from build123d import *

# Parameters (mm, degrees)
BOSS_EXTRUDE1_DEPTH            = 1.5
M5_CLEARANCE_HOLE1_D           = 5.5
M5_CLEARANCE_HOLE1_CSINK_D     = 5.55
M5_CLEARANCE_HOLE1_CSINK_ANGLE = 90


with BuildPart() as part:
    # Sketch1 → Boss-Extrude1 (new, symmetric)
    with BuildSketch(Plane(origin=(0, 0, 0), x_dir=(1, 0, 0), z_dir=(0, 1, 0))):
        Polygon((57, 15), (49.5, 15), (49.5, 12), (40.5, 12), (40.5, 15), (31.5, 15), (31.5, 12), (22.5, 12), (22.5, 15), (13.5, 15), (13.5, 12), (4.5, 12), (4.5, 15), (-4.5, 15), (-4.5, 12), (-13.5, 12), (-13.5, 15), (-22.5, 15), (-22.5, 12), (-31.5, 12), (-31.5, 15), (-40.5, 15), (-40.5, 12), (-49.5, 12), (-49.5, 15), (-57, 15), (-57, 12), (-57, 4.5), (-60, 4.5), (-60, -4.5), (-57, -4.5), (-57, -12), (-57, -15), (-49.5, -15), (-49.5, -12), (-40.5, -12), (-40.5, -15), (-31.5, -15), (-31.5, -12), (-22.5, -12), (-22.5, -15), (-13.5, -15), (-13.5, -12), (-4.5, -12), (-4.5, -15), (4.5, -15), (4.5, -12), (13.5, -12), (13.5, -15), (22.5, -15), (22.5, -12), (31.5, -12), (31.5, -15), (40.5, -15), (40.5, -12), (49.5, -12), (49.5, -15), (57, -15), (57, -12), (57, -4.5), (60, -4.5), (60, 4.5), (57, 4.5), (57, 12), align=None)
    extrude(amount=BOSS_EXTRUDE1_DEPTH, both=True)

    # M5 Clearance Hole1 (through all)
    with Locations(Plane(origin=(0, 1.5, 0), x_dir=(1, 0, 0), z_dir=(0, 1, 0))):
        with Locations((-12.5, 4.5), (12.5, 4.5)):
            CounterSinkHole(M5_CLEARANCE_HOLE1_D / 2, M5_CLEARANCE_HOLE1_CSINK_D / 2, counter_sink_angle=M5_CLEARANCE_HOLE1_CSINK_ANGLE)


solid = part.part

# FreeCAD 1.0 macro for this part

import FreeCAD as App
import Part
import Sketcher
from FreeCAD import Vector
Q = App.Units.Quantity

doc = App.newDocument("Part")
params = doc.addObject("Spreadsheet::Sheet", "Params")
for row, (alias, value) in enumerate([
    ("sketch1_width", "9 mm"),
    ("sketch1_width2", "3 mm"),
    ("sketch1_width3", "7.5 mm"),
    ("sketch1_height", "10.5 mm"),
    ("pad1_length", "3 mm"),
    ("sketch2_diameter", "5.5 mm"),
    ("hole_diameter", "5.5 mm"),
    ("hole_csink_diameter", "5.55 mm"),
], start=1):
    params.set(f"A{row}", alias)
    params.set(f"B{row}", "=" + value)
    params.setAlias(f"B{row}", alias)

body = doc.addObject("PartDesign::Body", "Body")

# Sketch on XZ plane
sketch1 = body.newObject("Sketcher::SketchObject", "Sketch")
sketch1.AttachmentSupport = (doc.getObject("XZ_Plane"), [""])
sketch1.MapMode = "FlatFace"
sketch1.addGeometry([
    Part.LineSegment(Vector(57, -15, 0), Vector(49.5, -15, 0)),  # 0
    Part.LineSegment(Vector(49.5, -15, 0), Vector(49.5, -12, 0)),  # 1
    Part.LineSegment(Vector(49.5, -12, 0), Vector(40.5, -12, 0)),  # 2
    Part.LineSegment(Vector(40.5, -12, 0), Vector(40.5, -15, 0)),  # 3
    Part.LineSegment(Vector(40.5, -15, 0), Vector(31.5, -15, 0)),  # 4
    Part.LineSegment(Vector(31.5, -15, 0), Vector(31.5, -12, 0)),  # 5
    Part.LineSegment(Vector(31.5, -12, 0), Vector(22.5, -12, 0)),  # 6
    Part.LineSegment(Vector(22.5, -12, 0), Vector(22.5, -15, 0)),  # 7
    Part.LineSegment(Vector(22.5, -15, 0), Vector(13.5, -15, 0)),  # 8
    Part.LineSegment(Vector(13.5, -15, 0), Vector(13.5, -12, 0)),  # 9
    Part.LineSegment(Vector(13.5, -12, 0), Vector(4.5, -12, 0)),  # 10
    Part.LineSegment(Vector(4.5, -12, 0), Vector(4.5, -15, 0)),  # 11
    Part.LineSegment(Vector(4.5, -15, 0), Vector(-4.5, -15, 0)),  # 12
    Part.LineSegment(Vector(-4.5, -15, 0), Vector(-4.5, -12, 0)),  # 13
    Part.LineSegment(Vector(-4.5, -12, 0), Vector(-13.5, -12, 0)),  # 14
    Part.LineSegment(Vector(-13.5, -12, 0), Vector(-13.5, -15, 0)),  # 15
    Part.LineSegment(Vector(-13.5, -15, 0), Vector(-22.5, -15, 0)),  # 16
    Part.LineSegment(Vector(-22.5, -15, 0), Vector(-22.5, -12, 0)),  # 17
    Part.LineSegment(Vector(-22.5, -12, 0), Vector(-31.5, -12, 0)),  # 18
    Part.LineSegment(Vector(-31.5, -12, 0), Vector(-31.5, -15, 0)),  # 19
    Part.LineSegment(Vector(-31.5, -15, 0), Vector(-40.5, -15, 0)),  # 20
    Part.LineSegment(Vector(-40.5, -15, 0), Vector(-40.5, -12, 0)),  # 21
    Part.LineSegment(Vector(-40.5, -12, 0), Vector(-49.5, -12, 0)),  # 22
    Part.LineSegment(Vector(-49.5, -12, 0), Vector(-49.5, -15, 0)),  # 23
    Part.LineSegment(Vector(-49.5, -15, 0), Vector(-57, -15, 0)),  # 24
    Part.LineSegment(Vector(-57, -15, 0), Vector(-57, -4.5, 0)),  # 25
    Part.LineSegment(Vector(-57, -4.5, 0), Vector(-60, -4.5, 0)),  # 26
    Part.LineSegment(Vector(-60, -4.5, 0), Vector(-60, 4.5, 0)),  # 27
    Part.LineSegment(Vector(-60, 4.5, 0), Vector(-57, 4.5, 0)),  # 28
    Part.LineSegment(Vector(-57, 4.5, 0), Vector(-57, 15, 0)),  # 29
    Part.LineSegment(Vector(-57, 15, 0), Vector(-49.5, 15, 0)),  # 30
    Part.LineSegment(Vector(-49.5, 15, 0), Vector(-49.5, 12, 0)),  # 31
    Part.LineSegment(Vector(-49.5, 12, 0), Vector(-40.5, 12, 0)),  # 32
    Part.LineSegment(Vector(-40.5, 12, 0), Vector(-40.5, 15, 0)),  # 33
    Part.LineSegment(Vector(-40.5, 15, 0), Vector(-31.5, 15, 0)),  # 34
    Part.LineSegment(Vector(-31.5, 15, 0), Vector(-31.5, 12, 0)),  # 35
    Part.LineSegment(Vector(-31.5, 12, 0), Vector(-22.5, 12, 0)),  # 36
    Part.LineSegment(Vector(-22.5, 12, 0), Vector(-22.5, 15, 0)),  # 37
    Part.LineSegment(Vector(-22.5, 15, 0), Vector(-13.5, 15, 0)),  # 38
    Part.LineSegment(Vector(-13.5, 15, 0), Vector(-13.5, 12, 0)),  # 39
    Part.LineSegment(Vector(-13.5, 12, 0), Vector(-4.5, 12, 0)),  # 40
    Part.LineSegment(Vector(-4.5, 12, 0), Vector(-4.5, 15, 0)),  # 41
    Part.LineSegment(Vector(-4.5, 15, 0), Vector(4.5, 15, 0)),  # 42
    Part.LineSegment(Vector(4.5, 15, 0), Vector(4.5, 12, 0)),  # 43
    Part.LineSegment(Vector(4.5, 12, 0), Vector(13.5, 12, 0)),  # 44
    Part.LineSegment(Vector(13.5, 12, 0), Vector(13.5, 15, 0)),  # 45
    Part.LineSegment(Vector(13.5, 15, 0), Vector(22.5, 15, 0)),  # 46
    Part.LineSegment(Vector(22.5, 15, 0), Vector(22.5, 12, 0)),  # 47
    Part.LineSegment(Vector(22.5, 12, 0), Vector(31.5, 12, 0)),  # 48
    Part.LineSegment(Vector(31.5, 12, 0), Vector(31.5, 15, 0)),  # 49
    Part.LineSegment(Vector(31.5, 15, 0), Vector(40.5, 15, 0)),  # 50
    Part.LineSegment(Vector(40.5, 15, 0), Vector(40.5, 12, 0)),  # 51
    Part.LineSegment(Vector(40.5, 12, 0), Vector(49.5, 12, 0)),  # 52
    Part.LineSegment(Vector(49.5, 12, 0), Vector(49.5, 15, 0)),  # 53
    Part.LineSegment(Vector(49.5, 15, 0), Vector(57, 15, 0)),  # 54
    Part.LineSegment(Vector(57, 15, 0), Vector(57, 4.5, 0)),  # 55
    Part.LineSegment(Vector(57, 4.5, 0), Vector(60, 4.5, 0)),  # 56
    Part.LineSegment(Vector(60, 4.5, 0), Vector(60, -4.5, 0)),  # 57
    Part.LineSegment(Vector(60, -4.5, 0), Vector(57, -4.5, 0)),  # 58
    Part.LineSegment(Vector(57, -4.5, 0), Vector(57, -15, 0)),  # 59
], False)
sketch1.addConstraint([
    Sketcher.Constraint("Coincident", 0, 2, 1, 1),
    Sketcher.Constraint("Coincident", 1, 2, 2, 1),
    Sketcher.Constraint("Coincident", 2, 2, 3, 1),
    Sketcher.Constraint("Coincident", 3, 2, 4, 1),
    Sketcher.Constraint("Coincident", 4, 2, 5, 1),
    Sketcher.Constraint("Coincident", 5, 2, 6, 1),
    Sketcher.Constraint("Coincident", 6, 2, 7, 1),
    Sketcher.Constraint("Coincident", 7, 2, 8, 1),
    Sketcher.Constraint("Coincident", 8, 2, 9, 1),
    Sketcher.Constraint("Coincident", 9, 2, 10, 1),
    Sketcher.Constraint("Coincident", 10, 2, 11, 1),
    Sketcher.Constraint("Coincident", 11, 2, 12, 1),
    Sketcher.Constraint("Coincident", 12, 2, 13, 1),
    Sketcher.Constraint("Coincident", 13, 2, 14, 1),
    Sketcher.Constraint("Coincident", 14, 2, 15, 1),
    Sketcher.Constraint("Coincident", 15, 2, 16, 1),
    Sketcher.Constraint("Coincident", 16, 2, 17, 1),
    Sketcher.Constraint("Coincident", 17, 2, 18, 1),
    Sketcher.Constraint("Coincident", 18, 2, 19, 1),
    Sketcher.Constraint("Coincident", 19, 2, 20, 1),
    Sketcher.Constraint("Coincident", 20, 2, 21, 1),
    Sketcher.Constraint("Coincident", 21, 2, 22, 1),
    Sketcher.Constraint("Coincident", 22, 2, 23, 1),
    Sketcher.Constraint("Coincident", 23, 2, 24, 1),
    Sketcher.Constraint("Coincident", 24, 2, 25, 1),
    Sketcher.Constraint("Coincident", 25, 2, 26, 1),
    Sketcher.Constraint("Coincident", 26, 2, 27, 1),
    Sketcher.Constraint("Coincident", 27, 2, 28, 1),
    Sketcher.Constraint("Coincident", 28, 2, 29, 1),
    Sketcher.Constraint("Coincident", 29, 2, 30, 1),
    Sketcher.Constraint("Coincident", 30, 2, 31, 1),
    Sketcher.Constraint("Coincident", 31, 2, 32, 1),
    Sketcher.Constraint("Coincident", 32, 2, 33, 1),
    Sketcher.Constraint("Coincident", 33, 2, 34, 1),
    Sketcher.Constraint("Coincident", 34, 2, 35, 1),
    Sketcher.Constraint("Coincident", 35, 2, 36, 1),
    Sketcher.Constraint("Coincident", 36, 2, 37, 1),
    Sketcher.Constraint("Coincident", 37, 2, 38, 1),
    Sketcher.Constraint("Coincident", 38, 2, 39, 1),
    Sketcher.Constraint("Coincident", 39, 2, 40, 1),
    Sketcher.Constraint("Coincident", 40, 2, 41, 1),
    Sketcher.Constraint("Coincident", 41, 2, 42, 1),
    Sketcher.Constraint("Coincident", 42, 2, 43, 1),
    Sketcher.Constraint("Coincident", 43, 2, 44, 1),
    Sketcher.Constraint("Coincident", 44, 2, 45, 1),
    Sketcher.Constraint("Coincident", 45, 2, 46, 1),
    Sketcher.Constraint("Coincident", 46, 2, 47, 1),
    Sketcher.Constraint("Coincident", 47, 2, 48, 1),
    Sketcher.Constraint("Coincident", 48, 2, 49, 1),
    Sketcher.Constraint("Coincident", 49, 2, 50, 1),
    Sketcher.Constraint("Coincident", 50, 2, 51, 1),
    Sketcher.Constraint("Coincident", 51, 2, 52, 1),
    Sketcher.Constraint("Coincident", 52, 2, 53, 1),
    Sketcher.Constraint("Coincident", 53, 2, 54, 1),
    Sketcher.Constraint("Coincident", 54, 2, 55, 1),
    Sketcher.Constraint("Coincident", 55, 2, 56, 1),
    Sketcher.Constraint("Coincident", 56, 2, 57, 1),
    Sketcher.Constraint("Coincident", 57, 2, 58, 1),
    Sketcher.Constraint("Coincident", 58, 2, 59, 1),
    Sketcher.Constraint("Coincident", 59, 2, 0, 1),
    Sketcher.Constraint("Horizontal", 0),
    Sketcher.Constraint("Vertical", 1),
    Sketcher.Constraint("Horizontal", 2),
    Sketcher.Constraint("Vertical", 3),
    Sketcher.Constraint("Horizontal", 4),
    Sketcher.Constraint("Vertical", 5),
    Sketcher.Constraint("Horizontal", 6),
    Sketcher.Constraint("Vertical", 7),
    Sketcher.Constraint("Horizontal", 8),
    Sketcher.Constraint("Vertical", 9),
    Sketcher.Constraint("Horizontal", 10),
    Sketcher.Constraint("Vertical", 11),
    Sketcher.Constraint("Horizontal", 12),
    Sketcher.Constraint("Vertical", 13),
    Sketcher.Constraint("Horizontal", 14),
    Sketcher.Constraint("Vertical", 15),
    Sketcher.Constraint("Horizontal", 16),
    Sketcher.Constraint("Vertical", 17),
    Sketcher.Constraint("Horizontal", 18),
    Sketcher.Constraint("Vertical", 19),
    Sketcher.Constraint("Horizontal", 20),
    Sketcher.Constraint("Vertical", 21),
    Sketcher.Constraint("Horizontal", 22),
    Sketcher.Constraint("Vertical", 23),
    Sketcher.Constraint("Horizontal", 24),
    Sketcher.Constraint("Vertical", 25),
    Sketcher.Constraint("Horizontal", 26),
    Sketcher.Constraint("Vertical", 27),
    Sketcher.Constraint("Horizontal", 28),
    Sketcher.Constraint("Vertical", 29),
    Sketcher.Constraint("Horizontal", 30),
    Sketcher.Constraint("Vertical", 31),
    Sketcher.Constraint("Horizontal", 32),
    Sketcher.Constraint("Vertical", 33),
    Sketcher.Constraint("Horizontal", 34),
    Sketcher.Constraint("Vertical", 35),
    Sketcher.Constraint("Horizontal", 36),
    Sketcher.Constraint("Vertical", 37),
    Sketcher.Constraint("Horizontal", 38),
    Sketcher.Constraint("Vertical", 39),
    Sketcher.Constraint("Horizontal", 40),
    Sketcher.Constraint("Vertical", 41),
    Sketcher.Constraint("Horizontal", 42),
    Sketcher.Constraint("Vertical", 43),
    Sketcher.Constraint("Horizontal", 44),
    Sketcher.Constraint("Vertical", 45),
    Sketcher.Constraint("Horizontal", 46),
    Sketcher.Constraint("Vertical", 47),
    Sketcher.Constraint("Horizontal", 48),
    Sketcher.Constraint("Vertical", 49),
    Sketcher.Constraint("Horizontal", 50),
    Sketcher.Constraint("Vertical", 51),
    Sketcher.Constraint("Horizontal", 52),
    Sketcher.Constraint("Vertical", 53),
    Sketcher.Constraint("Horizontal", 54),
    Sketcher.Constraint("Vertical", 55),
    Sketcher.Constraint("Horizontal", 56),
    Sketcher.Constraint("Vertical", 57),
    Sketcher.Constraint("Horizontal", 58),
    Sketcher.Constraint("Vertical", 59),
    Sketcher.Constraint("Symmetric", 0, 2, 30, 2, -1, 1),
    Sketcher.Constraint("Symmetric", 2, 2, 32, 2, -1, 1),
    Sketcher.Constraint("Symmetric", 4, 2, 34, 2, -1, 1),
    Sketcher.Constraint("Symmetric", 6, 2, 36, 2, -1, 1),
    Sketcher.Constraint("Symmetric", 8, 2, 38, 2, -1, 1),
    Sketcher.Constraint("Symmetric", 10, 2, 40, 2, -1, 1),
    Sketcher.Constraint("Symmetric", 12, 2, 42, 2, -1, 1),
    Sketcher.Constraint("Symmetric", 14, 2, 44, 2, -1, 1),
    Sketcher.Constraint("Symmetric", 16, 2, 46, 2, -1, 1),
    Sketcher.Constraint("Symmetric", 18, 2, 48, 2, -1, 1),
    Sketcher.Constraint("Symmetric", 20, 2, 50, 2, -1, 1),
    Sketcher.Constraint("Symmetric", 22, 2, 52, 2, -1, 1),
    Sketcher.Constraint("Symmetric", 24, 2, 54, 2, -1, 1),
    Sketcher.Constraint("Symmetric", 26, 2, 56, 2, -1, 1),
    Sketcher.Constraint("Symmetric", 28, 2, 58, 2, -1, 1),
    Sketcher.Constraint("Symmetric", 10, 2, 13, 2, -2),
    Sketcher.Constraint("Symmetric", 8, 2, 15, 2, -2),
    Sketcher.Constraint("Symmetric", 6, 2, 17, 2, -2),
    Sketcher.Constraint("Symmetric", 4, 2, 19, 2, -2),
    Sketcher.Constraint("Symmetric", 2, 2, 21, 2, -2),
    Sketcher.Constraint("Symmetric", 0, 2, 23, 2, -2),
    Sketcher.Constraint("Symmetric", 28, 2, 55, 2, -2),
    Sketcher.Constraint("Horizontal", 0, 2, 3, 2),
    Sketcher.Constraint("Horizontal", 2, 2, 5, 2),
    Sketcher.Constraint("Horizontal", 4, 2, 7, 2),
    Sketcher.Constraint("Horizontal", 6, 2, 9, 2),
    Sketcher.Constraint("Horizontal", 8, 2, 11, 2),
    Sketcher.Constraint("Equal", 2, 4),
    Sketcher.Constraint("Equal", 4, 6),
    Sketcher.Constraint("Equal", 6, 8),
    Sketcher.Constraint("Equal", 8, 10),
    Sketcher.Constraint("Equal", 10, 12),
    Sketcher.Constraint("Equal", 58, 1),
    Sketcher.Constraint("Equal", 52, 27),
    Sketcher.Constraint("DistanceX", 2, 2, 2, 1, Q("9 mm")),
    Sketcher.Constraint("DistanceX", 26, 2, 26, 1, Q("3 mm")),
    Sketcher.Constraint("DistanceX", 0, 2, 0, 1, Q("7.5 mm")),
    Sketcher.Constraint("DistanceY", 25, 1, 25, 2, Q("10.5 mm")),
])
sketch1.setExpression("Constraints[154]", "Params.sketch1_width")
sketch1.setExpression("Constraints[155]", "Params.sketch1_width2")
sketch1.setExpression("Constraints[156]", "Params.sketch1_width3")
sketch1.setExpression("Constraints[157]", "Params.sketch1_height")
pad1 = body.newObject("PartDesign::Pad", "Pad")
pad1.Profile = sketch1
pad1.setExpression("Length", "Params.pad1_length")
pad1.Midplane = True

# Sketch on XZ plane
sketch2 = body.newObject("Sketcher::SketchObject", "Sketch001")
sketch2.AttachmentSupport = (doc.getObject("XZ_Plane"), [""])
sketch2.MapMode = "FlatFace"
sketch2.AttachmentOffset = App.Placement(Vector(0, 0, -1.5), App.Rotation())
sketch2.addGeometry([
    Part.Circle(Vector(-12.5, -4.5, 0), Vector(0, 0, 1), 2.8),
    Part.Circle(Vector(12.5, -4.5, 0), Vector(0, 0, 1), 2.8),
], False)
sketch2.addConstraint([
    Sketcher.Constraint("Equal", 0, 1),
    Sketcher.Constraint("Symmetric", 0, 3, 1, 3, -2),
    Sketcher.Constraint("Diameter", 0, Q("5.5 mm")),
    Sketcher.Constraint("DistanceX", 0, 3, 1, 3, Q("25 mm")),
    Sketcher.Constraint("DistanceY", 0, 3, -1, 1, Q("4.5 mm")),
])
sketch2.setExpression("Constraints[2]", "Params.sketch2_diameter")
doc.recompute()
hole = body.newObject("PartDesign::Hole", "Hole")
hole.Profile = sketch2
hole.ThreadType = "None"
hole.setExpression("Diameter", "Params.hole_diameter")
hole.DepthType = "ThroughAll"
hole.HoleCutType = "Countersink"
hole.setExpression("HoleCutDiameter", "Params.hole_csink_diameter")
hole.HoleCutCountersinkAngle = 90
hole.Reversed = True

doc.recompute()
